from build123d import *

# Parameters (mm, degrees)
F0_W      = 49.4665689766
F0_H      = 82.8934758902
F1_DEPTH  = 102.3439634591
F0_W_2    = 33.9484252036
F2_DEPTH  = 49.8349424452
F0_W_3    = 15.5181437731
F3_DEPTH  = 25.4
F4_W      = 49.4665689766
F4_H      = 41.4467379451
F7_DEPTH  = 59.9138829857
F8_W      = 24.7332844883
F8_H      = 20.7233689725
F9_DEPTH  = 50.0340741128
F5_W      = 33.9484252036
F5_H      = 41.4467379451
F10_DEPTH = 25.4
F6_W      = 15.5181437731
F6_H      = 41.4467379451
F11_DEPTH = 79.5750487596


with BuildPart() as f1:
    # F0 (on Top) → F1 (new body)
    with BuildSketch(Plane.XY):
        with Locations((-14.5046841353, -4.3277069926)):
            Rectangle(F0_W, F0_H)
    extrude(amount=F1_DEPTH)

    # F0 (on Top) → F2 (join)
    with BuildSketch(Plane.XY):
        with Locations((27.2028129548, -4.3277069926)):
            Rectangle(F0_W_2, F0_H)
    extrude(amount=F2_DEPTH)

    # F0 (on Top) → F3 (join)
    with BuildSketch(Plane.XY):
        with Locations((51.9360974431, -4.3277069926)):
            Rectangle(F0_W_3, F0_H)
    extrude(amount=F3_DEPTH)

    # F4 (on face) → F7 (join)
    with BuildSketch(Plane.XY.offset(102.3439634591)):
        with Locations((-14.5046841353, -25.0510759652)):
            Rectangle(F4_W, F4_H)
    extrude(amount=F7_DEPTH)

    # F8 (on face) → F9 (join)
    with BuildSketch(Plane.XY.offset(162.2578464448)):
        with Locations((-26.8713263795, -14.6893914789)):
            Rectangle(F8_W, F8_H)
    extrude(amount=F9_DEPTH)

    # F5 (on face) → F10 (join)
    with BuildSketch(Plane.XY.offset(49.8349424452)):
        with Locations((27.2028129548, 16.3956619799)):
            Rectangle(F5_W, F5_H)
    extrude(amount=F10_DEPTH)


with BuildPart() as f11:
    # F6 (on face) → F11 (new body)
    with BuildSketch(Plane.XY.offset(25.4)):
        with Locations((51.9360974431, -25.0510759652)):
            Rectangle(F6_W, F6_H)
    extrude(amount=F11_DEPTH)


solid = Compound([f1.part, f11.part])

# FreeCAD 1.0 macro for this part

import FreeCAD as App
import Part
import Sketcher

V = App.Vector
Q = App.Units.Quantity

doc = App.newDocument("Part")
body = doc.addObject("PartDesign::Body", "Body")

# Sketch on XY plane
sketch1 = body.newObject("Sketcher::SketchObject", "Sketch")
sketch1.AttachmentSupport = (doc.getObject("XY_Plane"), [""])
sketch1.MapMode = "FlatFace"
sketch1.addGeometry(Part.LineSegment(V(-39, 37, 0), V(-39, -46, 0)), False)
sketch1.addGeometry(Part.LineSegment(V(-39, -46, 0), V(10, -46, 0)), False)
sketch1.addGeometry(Part.LineSegment(V(10, -46, 0), V(10, 37, 0)), False)
sketch1.addGeometry(Part.LineSegment(V(10, 37, 0), V(-39, 37, 0)), False)
sketch1.addConstraint(Sketcher.Constraint("Coincident", 0, 2, 1, 1))
sketch1.addConstraint(Sketcher.Constraint("Coincident", 1, 2, 2, 1))
sketch1.addConstraint(Sketcher.Constraint("Coincident", 2, 2, 3, 1))
sketch1.addConstraint(Sketcher.Constraint("Coincident", 3, 2, 0, 1))
sketch1.addConstraint(Sketcher.Constraint("Vertical", 0))
sketch1.addConstraint(Sketcher.Constraint("Horizontal", 1))
sketch1.addConstraint(Sketcher.Constraint("Vertical", 2))
sketch1.addConstraint(Sketcher.Constraint("Horizontal", 3))
sketch1.addConstraint(Sketcher.Constraint("DistanceX", 1, 1, 1, 2, 49.466569))
sketch1.addConstraint(Sketcher.Constraint("DistanceX", -1, 1, 1, 2, 10.2286))
sketch1.addConstraint(Sketcher.Constraint("DistanceY", 0, 2, 0, 1, 82.893476))
sketch1.addConstraint(Sketcher.Constraint("DistanceY", -1, 1, 2, 2, 37.119031))
pad1 = body.newObject("PartDesign::Pad", "Pad")
pad1.Profile = sketch1
pad1.Length = 102.343963

# Sketch on XY plane
sketch2 = body.newObject("Sketcher::SketchObject", "Sketch001")
sketch2.AttachmentSupport = (doc.getObject("XY_Plane"), [""])
sketch2.MapMode = "FlatFace"
sketch2.addGeometry(Part.LineSegment(V(10, 37, 0), V(10, -46, 0)), False)
sketch2.addGeometry(Part.LineSegment(V(10, -46, 0), V(44, -46, 0)), False)
sketch2.addGeometry(Part.LineSegment(V(44, -46, 0), V(44, 37, 0)), False)
sketch2.addGeometry(Part.LineSegment(V(44, 37, 0), V(10, 37, 0)), False)
sketch2.addConstraint(Sketcher.Constraint("Coincident", 0, 2, 1, 1))
sketch2.addConstraint(Sketcher.Constraint("Coincident", 1, 2, 2, 1))
sketch2.addConstraint(Sketcher.Constraint("Coincident", 2, 2, 3, 1))
sketch2.addConstraint(Sketcher.Constraint("Coincident", 3, 2, 0, 1))
sketch2.addConstraint(Sketcher.Constraint("Vertical", 0))
sketch2.addConstraint(Sketcher.Constraint("Horizontal", 1))
sketch2.addConstraint(Sketcher.Constraint("Vertical", 2))
sketch2.addConstraint(Sketcher.Constraint("Horizontal", 3))
sketch2.addConstraint(Sketcher.Constraint("DistanceX", -1, 1, 0, 2, 10.2286))
sketch2.addConstraint(Sketcher.Constraint("DistanceX", 1, 1, 1, 2, 33.948425))
sketch2.addConstraint(Sketcher.Constraint("DistanceY", 0, 2, 0, 1, 82.893476))
sketch2.addConstraint(Sketcher.Constraint("DistanceY", -1, 1, 2, 2, 37.119031))
pad2 = body.newObject("PartDesign::Pad", "Pad001")
pad2.Profile = sketch2
pad2.Length = 49.834942

# Sketch on XY plane
sketch3 = body.newObject("Sketcher::SketchObject", "Sketch002")
sketch3.AttachmentSupport = (doc.getObject("XY_Plane"), [""])
sketch3.MapMode = "FlatFace"
sketch3.addGeometry(Part.LineSegment(V(44, 37, 0), V(44, -46, 0)), False)
sketch3.addGeometry(Part.LineSegment(V(44, -46, 0), V(60, -46, 0)), False)
sketch3.addGeometry(Part.LineSegment(V(60, -46, 0), V(60, 37, 0)), False)
sketch3.addGeometry(Part.LineSegment(V(60, 37, 0), V(44, 37, 0)), False)
sketch3.addConstraint(Sketcher.Constraint("Coincident", 0, 2, 1, 1))
sketch3.addConstraint(Sketcher.Constraint("Coincident", 1, 2, 2, 1))
sketch3.addConstraint(Sketcher.Constraint("Coincident", 2, 2, 3, 1))
sketch3.addConstraint(Sketcher.Constraint("Coincident", 3, 2, 0, 1))
sketch3.addConstraint(Sketcher.Constraint("Vertical", 0))
sketch3.addConstraint(Sketcher.Constraint("Horizontal", 1))
sketch3.addConstraint(Sketcher.Constraint("Vertical", 2))
sketch3.addConstraint(Sketcher.Constraint("Horizontal", 3))
sketch3.addConstraint(Sketcher.Constraint("DistanceX", 1, 1, 1, 2, 15.518144))
sketch3.addConstraint(Sketcher.Constraint("DistanceY", 0, 2, 0, 1, 82.893476))
sketch3.addConstraint(Sketcher.Constraint("DistanceX", -1, 1, 1, 2, 59.695169))
sketch3.addConstraint(Sketcher.Constraint("DistanceY", -1, 1, 2, 2, 37.119031))
pad3 = body.newObject("PartDesign::Pad", "Pad002")
pad3.Profile = sketch3
pad3.Length = Q("1 in")

# Sketch on XY plane
sketch4 = body.newObject("Sketcher::SketchObject", "Sketch003")
sketch4.AttachmentSupport = (doc.getObject("XY_Plane"), [""])
sketch4.MapMode = "FlatFace"
sketch4.AttachmentOffset = App.Placement(V(0, 0, 102.343963), App.Rotation())
sketch4.addGeometry(Part.LineSegment(V(-39, -4, 0), V(-39, -46, 0)), False)
sketch4.addGeometry(Part.LineSegment(V(-39, -46, 0), V(10, -46, 0)), False)
sketch4.addGeometry(Part.LineSegment(V(10, -46, 0), V(10, -4, 0)), False)
sketch4.addGeometry(Part.LineSegment(V(10, -4, 0), V(-39, -4, 0)), False)
sketch4.addConstraint(Sketcher.Constraint("Coincident", 0, 2, 1, 1))
sketch4.addConstraint(Sketcher.Constraint("Coincident", 1, 2, 2, 1))
sketch4.addConstraint(Sketcher.Constraint("Coincident", 2, 2, 3, 1))
sketch4.addConstraint(Sketcher.Constraint("Coincident", 3, 2, 0, 1))
sketch4.addConstraint(Sketcher.Constraint("Vertical", 0))
sketch4.addConstraint(Sketcher.Constraint("Horizontal", 1))
sketch4.addConstraint(Sketcher.Constraint("Vertical", 2))
sketch4.addConstraint(Sketcher.Constraint("Horizontal", 3))
sketch4.addConstraint(Sketcher.Constraint("DistanceX", 1, 1, 1, 2, 49.466569))
sketch4.addConstraint(Sketcher.Constraint("DistanceX", -1, 1, 1, 2, 10.2286))
sketch4.addConstraint(Sketcher.Constraint("DistanceY", 0, 2, 0, 1, 41.446738))
sketch4.addConstraint(Sketcher.Constraint("DistanceY", 0, 2, -1, 1, 45.774445))
pad4 = body.newObject("PartDesign::Pad", "Pad003")
pad4.Profile = sketch4
pad4.Length = 59.913883

# Sketch on XY plane
sketch5 = body.newObject("Sketcher::SketchObject", "Sketch004")
sketch5.AttachmentSupport = (doc.getObject("XY_Plane"), [""])
sketch5.MapMode = "FlatFace"
sketch5.AttachmentOffset = App.Placement(V(0, 0, 162.257846), App.Rotation())
sketch5.addGeometry(Part.LineSegment(V(-39, -4, 0), V(-39, -25, 0)), False)
sketch5.addGeometry(Part.LineSegment(V(-39, -25, 0), V(-15, -25, 0)), False)
sketch5.addGeometry(Part.LineSegment(V(-15, -25, 0), V(-15, -4, 0)), False)
sketch5.addGeometry(Part.LineSegment(V(-15, -4, 0), V(-39, -4, 0)), False)
sketch5.addConstraint(Sketcher.Constraint("Coincident", 0, 2, 1, 1))
sketch5.addConstraint(Sketcher.Constraint("Coincident", 1, 2, 2, 1))
sketch5.addConstraint(Sketcher.Constraint("Coincident", 2, 2, 3, 1))
sketch5.addConstraint(Sketcher.Constraint("Coincident", 3, 2, 0, 1))
sketch5.addConstraint(Sketcher.Constraint("Vertical", 0))
sketch5.addConstraint(Sketcher.Constraint("Horizontal", 1))
sketch5.addConstraint(Sketcher.Constraint("Vertical", 2))
sketch5.addConstraint(Sketcher.Constraint("Horizontal", 3))
sketch5.addConstraint(Sketcher.Constraint("DistanceY", 0, 2, 0, 1, 20.723369))
sketch5.addConstraint(Sketcher.Constraint("DistanceX", 1, 1, 1, 2, 24.733284))
sketch5.addConstraint(Sketcher.Constraint("DistanceX", 0, 2, -1, 1, 39.237969))
sketch5.addConstraint(Sketcher.Constraint("DistanceY", 0, 2, -1, 1, 25.051076))
pad5 = body.newObject("PartDesign::Pad", "Pad004")
pad5.Profile = sketch5
pad5.Length = 50.034074

# Sketch on XY plane
sketch6 = body.newObject("Sketcher::SketchObject", "Sketch005")
sketch6.AttachmentSupport = (doc.getObject("XY_Plane"), [""])
sketch6.MapMode = "FlatFace"
sketch6.AttachmentOffset = App.Placement(V(0, 0, 49.834942), App.Rotation())
sketch6.addGeometry(Part.LineSegment(V(10, 37, 0), V(10, -4, 0)), False)
sketch6.addGeometry(Part.LineSegment(V(10, -4, 0), V(44, -4, 0)), False)
sketch6.addGeometry(Part.LineSegment(V(44, -4, 0), V(44, 37, 0)), False)
sketch6.addGeometry(Part.LineSegment(V(44, 37, 0), V(10, 37, 0)), False)
sketch6.addConstraint(Sketcher.Constraint("Coincident", 0, 2, 1, 1))
sketch6.addConstraint(Sketcher.Constraint("Coincident", 1, 2, 2, 1))
sketch6.addConstraint(Sketcher.Constraint("Coincident", 2, 2, 3, 1))
sketch6.addConstraint(Sketcher.Constraint("Coincident", 3, 2, 0, 1))
sketch6.addConstraint(Sketcher.Constraint("Vertical", 0))
sketch6.addConstraint(Sketcher.Constraint("Horizontal", 1))
sketch6.addConstraint(Sketcher.Constraint("Vertical", 2))
sketch6.addConstraint(Sketcher.Constraint("Horizontal", 3))
sketch6.addConstraint(Sketcher.Constraint("DistanceX", -1, 1, 0, 2, 10.2286))
sketch6.addConstraint(Sketcher.Constraint("DistanceX", 1, 1, 1, 2, 33.948425))
sketch6.addConstraint(Sketcher.Constraint("DistanceY", 0, 2, 0, 1, 41.446738))
sketch6.addConstraint(Sketcher.Constraint("DistanceY", -1, 1, 2, 2, 37.119031))
pad6 = body.newObject("PartDesign::Pad", "Pad005")
pad6.Profile = sketch6
pad6.Length = Q("1 in")
body2 = doc.addObject("PartDesign::Body", "Body001")

# Sketch on XY plane
sketch7 = body2.newObject("Sketcher::SketchObject", "Sketch006")
sketch7.AttachmentSupport = (doc.getObject("XY_Plane001"), [""])
sketch7.MapMode = "FlatFace"
sketch7.AttachmentOffset = App.Placement(V(0, 0, 1 * 25.4), App.Rotation())
sketch7.addGeometry(Part.LineSegment(V(44, -4, 0), V(44, -46, 0)), False)
sketch7.addGeometry(Part.LineSegment(V(44, -46, 0), V(60, -46, 0)), False)
sketch7.addGeometry(Part.LineSegment(V(60, -46, 0), V(60, -4, 0)), False)
sketch7.addGeometry(Part.LineSegment(V(60, -4, 0), V(44, -4, 0)), False)
sketch7.addConstraint(Sketcher.Constraint("Coincident", 0, 2, 1, 1))
sketch7.addConstraint(Sketcher.Constraint("Coincident", 1, 2, 2, 1))
sketch7.addConstraint(Sketcher.Constraint("Coincident", 2, 2, 3, 1))
sketch7.addConstraint(Sketcher.Constraint("Coincident", 3, 2, 0, 1))
sketch7.addConstraint(Sketcher.Constraint("Vertical", 0))
sketch7.addConstraint(Sketcher.Constraint("Horizontal", 1))
sketch7.addConstraint(Sketcher.Constraint("Vertical", 2))
sketch7.addConstraint(Sketcher.Constraint("Horizontal", 3))
sketch7.addConstraint(Sketcher.Constraint("DistanceX", 1, 1, 1, 2, 15.518144))
sketch7.addConstraint(Sketcher.Constraint("DistanceY", 0, 2, 0, 1, 41.446738))
sketch7.addConstraint(Sketcher.Constraint("DistanceX", -1, 1, 1, 2, 59.695169))
sketch7.addConstraint(Sketcher.Constraint("DistanceY", 0, 2, -1, 1, 45.774445))
pad7 = body2.newObject("PartDesign::Pad", "Pad006")
pad7.Profile = sketch7
pad7.Length = 79.575049

doc.recompute()
